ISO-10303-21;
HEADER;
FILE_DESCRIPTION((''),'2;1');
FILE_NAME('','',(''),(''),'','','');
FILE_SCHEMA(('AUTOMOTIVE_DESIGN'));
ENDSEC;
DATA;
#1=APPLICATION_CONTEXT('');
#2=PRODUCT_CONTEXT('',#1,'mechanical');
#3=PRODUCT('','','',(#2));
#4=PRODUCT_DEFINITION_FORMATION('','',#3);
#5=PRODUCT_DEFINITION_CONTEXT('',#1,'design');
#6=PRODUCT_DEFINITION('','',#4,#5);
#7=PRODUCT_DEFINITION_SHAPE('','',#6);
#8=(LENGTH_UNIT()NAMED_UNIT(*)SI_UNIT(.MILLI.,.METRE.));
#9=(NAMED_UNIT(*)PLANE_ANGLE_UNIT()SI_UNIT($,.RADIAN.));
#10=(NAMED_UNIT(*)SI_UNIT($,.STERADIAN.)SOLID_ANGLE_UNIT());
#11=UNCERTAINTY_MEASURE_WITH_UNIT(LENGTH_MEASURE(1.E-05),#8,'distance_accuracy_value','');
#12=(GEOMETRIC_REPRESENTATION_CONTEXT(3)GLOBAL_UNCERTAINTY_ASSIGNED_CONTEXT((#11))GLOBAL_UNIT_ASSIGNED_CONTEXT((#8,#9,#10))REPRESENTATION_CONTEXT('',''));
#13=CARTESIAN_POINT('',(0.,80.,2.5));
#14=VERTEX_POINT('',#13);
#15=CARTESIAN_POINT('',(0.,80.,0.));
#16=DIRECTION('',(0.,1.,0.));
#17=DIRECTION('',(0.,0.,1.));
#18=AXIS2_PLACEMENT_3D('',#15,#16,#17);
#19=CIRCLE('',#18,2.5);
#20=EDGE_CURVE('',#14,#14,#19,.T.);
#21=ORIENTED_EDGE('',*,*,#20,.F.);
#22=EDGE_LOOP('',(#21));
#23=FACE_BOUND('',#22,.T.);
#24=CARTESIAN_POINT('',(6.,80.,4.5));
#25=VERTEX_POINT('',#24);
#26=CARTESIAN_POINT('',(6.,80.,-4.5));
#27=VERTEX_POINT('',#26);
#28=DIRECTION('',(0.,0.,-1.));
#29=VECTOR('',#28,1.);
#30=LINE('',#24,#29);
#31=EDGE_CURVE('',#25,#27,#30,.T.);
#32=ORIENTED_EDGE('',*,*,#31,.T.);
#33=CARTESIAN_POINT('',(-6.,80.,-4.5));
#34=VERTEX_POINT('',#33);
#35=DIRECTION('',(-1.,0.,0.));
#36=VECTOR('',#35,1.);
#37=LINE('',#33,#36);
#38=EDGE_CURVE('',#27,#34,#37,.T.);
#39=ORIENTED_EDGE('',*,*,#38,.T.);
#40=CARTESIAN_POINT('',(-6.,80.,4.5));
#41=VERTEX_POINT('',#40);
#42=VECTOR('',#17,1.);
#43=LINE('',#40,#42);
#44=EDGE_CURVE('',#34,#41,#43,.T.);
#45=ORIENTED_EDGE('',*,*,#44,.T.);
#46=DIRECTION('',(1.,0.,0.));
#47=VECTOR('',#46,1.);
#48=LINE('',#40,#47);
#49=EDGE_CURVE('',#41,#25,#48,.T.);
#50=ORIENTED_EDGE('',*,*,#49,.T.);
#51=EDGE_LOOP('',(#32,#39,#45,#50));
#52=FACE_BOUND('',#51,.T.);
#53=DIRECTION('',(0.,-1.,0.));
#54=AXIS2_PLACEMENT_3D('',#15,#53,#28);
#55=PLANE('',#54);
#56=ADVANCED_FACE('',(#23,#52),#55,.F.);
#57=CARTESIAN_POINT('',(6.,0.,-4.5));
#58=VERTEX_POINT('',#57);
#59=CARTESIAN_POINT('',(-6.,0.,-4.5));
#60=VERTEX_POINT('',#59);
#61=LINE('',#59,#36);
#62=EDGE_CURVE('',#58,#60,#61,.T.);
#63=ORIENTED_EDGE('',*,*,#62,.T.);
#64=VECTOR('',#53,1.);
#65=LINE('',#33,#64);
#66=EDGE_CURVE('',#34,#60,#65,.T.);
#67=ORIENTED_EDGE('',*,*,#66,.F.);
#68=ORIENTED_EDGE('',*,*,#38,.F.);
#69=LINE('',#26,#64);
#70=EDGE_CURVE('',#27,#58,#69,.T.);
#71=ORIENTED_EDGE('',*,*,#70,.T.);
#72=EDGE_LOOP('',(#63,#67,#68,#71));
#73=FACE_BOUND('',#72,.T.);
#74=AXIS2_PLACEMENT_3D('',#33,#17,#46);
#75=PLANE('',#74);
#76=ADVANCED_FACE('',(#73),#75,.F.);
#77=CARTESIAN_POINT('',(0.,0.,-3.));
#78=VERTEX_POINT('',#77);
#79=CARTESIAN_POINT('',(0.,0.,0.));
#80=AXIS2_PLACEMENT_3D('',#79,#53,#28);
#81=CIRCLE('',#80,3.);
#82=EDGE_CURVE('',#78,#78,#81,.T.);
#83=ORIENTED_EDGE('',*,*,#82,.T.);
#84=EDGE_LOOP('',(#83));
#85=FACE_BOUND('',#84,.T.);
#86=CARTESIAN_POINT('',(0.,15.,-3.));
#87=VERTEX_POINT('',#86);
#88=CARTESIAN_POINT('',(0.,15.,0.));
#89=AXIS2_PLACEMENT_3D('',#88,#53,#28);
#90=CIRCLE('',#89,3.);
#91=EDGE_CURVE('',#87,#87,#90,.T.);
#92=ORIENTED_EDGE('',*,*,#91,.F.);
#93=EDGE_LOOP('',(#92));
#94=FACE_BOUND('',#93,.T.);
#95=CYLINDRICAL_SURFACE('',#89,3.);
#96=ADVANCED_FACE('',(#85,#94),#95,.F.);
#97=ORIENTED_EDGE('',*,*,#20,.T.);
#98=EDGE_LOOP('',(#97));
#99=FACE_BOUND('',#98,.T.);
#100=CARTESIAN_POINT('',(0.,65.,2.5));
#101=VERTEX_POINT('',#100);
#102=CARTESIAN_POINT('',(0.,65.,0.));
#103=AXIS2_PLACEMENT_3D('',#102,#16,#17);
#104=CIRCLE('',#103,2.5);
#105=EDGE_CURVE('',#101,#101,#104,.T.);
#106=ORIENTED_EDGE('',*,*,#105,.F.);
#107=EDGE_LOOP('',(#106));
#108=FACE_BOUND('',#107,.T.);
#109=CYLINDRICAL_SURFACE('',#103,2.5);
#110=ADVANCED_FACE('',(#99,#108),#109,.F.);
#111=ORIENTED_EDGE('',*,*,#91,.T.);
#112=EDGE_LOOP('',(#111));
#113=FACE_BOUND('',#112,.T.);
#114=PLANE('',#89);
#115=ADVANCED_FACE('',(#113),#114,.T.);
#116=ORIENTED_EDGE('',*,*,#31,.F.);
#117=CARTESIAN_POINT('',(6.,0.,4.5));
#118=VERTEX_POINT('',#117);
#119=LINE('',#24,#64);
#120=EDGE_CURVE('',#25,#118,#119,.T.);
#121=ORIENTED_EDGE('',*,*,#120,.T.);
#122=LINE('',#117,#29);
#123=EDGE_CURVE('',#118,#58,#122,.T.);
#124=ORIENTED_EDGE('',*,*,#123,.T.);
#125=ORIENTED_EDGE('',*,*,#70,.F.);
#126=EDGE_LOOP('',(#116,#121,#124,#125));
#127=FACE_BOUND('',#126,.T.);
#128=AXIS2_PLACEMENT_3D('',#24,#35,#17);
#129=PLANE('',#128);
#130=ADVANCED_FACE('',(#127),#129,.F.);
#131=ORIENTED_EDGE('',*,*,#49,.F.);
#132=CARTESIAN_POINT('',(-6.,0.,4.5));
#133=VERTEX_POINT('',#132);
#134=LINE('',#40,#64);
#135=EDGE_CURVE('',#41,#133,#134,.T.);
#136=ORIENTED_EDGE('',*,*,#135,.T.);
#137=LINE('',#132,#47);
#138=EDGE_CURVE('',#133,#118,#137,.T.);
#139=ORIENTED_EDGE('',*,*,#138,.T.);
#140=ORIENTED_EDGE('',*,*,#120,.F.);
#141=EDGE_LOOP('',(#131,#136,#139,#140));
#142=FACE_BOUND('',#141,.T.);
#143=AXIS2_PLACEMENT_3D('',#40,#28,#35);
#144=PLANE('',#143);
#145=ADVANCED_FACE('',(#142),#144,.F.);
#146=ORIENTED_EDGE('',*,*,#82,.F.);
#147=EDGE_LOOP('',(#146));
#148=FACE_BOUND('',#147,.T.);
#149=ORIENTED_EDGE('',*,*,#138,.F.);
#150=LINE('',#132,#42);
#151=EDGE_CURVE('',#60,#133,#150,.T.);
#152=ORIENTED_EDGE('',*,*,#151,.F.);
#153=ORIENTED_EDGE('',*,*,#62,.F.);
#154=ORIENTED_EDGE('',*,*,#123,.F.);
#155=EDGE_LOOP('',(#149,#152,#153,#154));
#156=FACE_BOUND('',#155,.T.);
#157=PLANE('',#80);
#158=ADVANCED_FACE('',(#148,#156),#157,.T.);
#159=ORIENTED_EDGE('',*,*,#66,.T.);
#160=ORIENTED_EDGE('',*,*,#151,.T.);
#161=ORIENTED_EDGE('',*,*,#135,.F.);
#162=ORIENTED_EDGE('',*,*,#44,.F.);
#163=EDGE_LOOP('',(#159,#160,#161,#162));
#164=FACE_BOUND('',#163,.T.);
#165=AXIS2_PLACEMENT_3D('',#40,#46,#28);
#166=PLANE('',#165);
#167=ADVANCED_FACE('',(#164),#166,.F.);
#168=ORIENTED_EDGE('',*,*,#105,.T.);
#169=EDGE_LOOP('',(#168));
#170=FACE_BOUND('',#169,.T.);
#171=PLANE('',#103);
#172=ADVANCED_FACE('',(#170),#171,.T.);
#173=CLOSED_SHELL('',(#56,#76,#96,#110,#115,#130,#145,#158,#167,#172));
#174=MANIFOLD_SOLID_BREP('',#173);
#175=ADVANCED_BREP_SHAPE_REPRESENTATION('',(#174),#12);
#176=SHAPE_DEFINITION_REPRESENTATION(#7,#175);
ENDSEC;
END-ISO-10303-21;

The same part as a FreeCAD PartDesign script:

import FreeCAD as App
import Part
import Sketcher
from FreeCAD import Vector
Q = App.Units.Quantity


def add_polygon(sketch, points):
    """Adds a closed chain of lines whose ends are joined by coincident constraints."""
    first, n = sketch.GeometryCount, len(points)
    for a, b in zip(points, points[1:] + points[:1]):
        sketch.addGeometry(Part.LineSegment(App.Vector(*a, 0), App.Vector(*b, 0)), False)
    for i in range(n):
        sketch.addConstraint(Sketcher.Constraint("Coincident", first + i, 2, first + (i + 1) % n, 1))

doc = App.newDocument("Part")
params = doc.addObject("Spreadsheet::Sheet", "Params")
for row, (alias, value) in enumerate([
    ("sketch1_width", "12 mm"),
    ("sketch1_height", "9 mm"),
    ("pad1_length", "80 mm"),
    ("sketch2_diameter", "6 mm"),
    ("pocket1_length", "15 mm"),
    ("sketch3_diameter", "5 mm"),
    ("pocket2_length", "15 mm"),
], start=1):
    params.set(f"A{row}", alias)
    params.set(f"B{row}", "=" + value)
    params.setAlias(f"B{row}", alias)

body = doc.addObject("PartDesign::Body", "Body")

sketch1 = doc.addObject("Sketcher::SketchObject", "Sketch")
body.addObject(sketch1)
sketch1.AttachmentSupport = (doc.XZ_Plane, [""])
sketch1.MapMode = "FlatFace"
add_polygon(sketch1, [(-6, -4), (-6, 4), (6, 4), (6, -4)])
sketch1.addConstraint([
    Sketcher.Constraint("Vertical", 0),
    Sketcher.Constraint("Horizontal", 1),
    Sketcher.Constraint("Vertical", 2),
    Sketcher.Constraint("Horizontal", 3),
    Sketcher.Constraint("Symmetric", 0, 2, 2, 2, -1, 1),
    Sketcher.Constraint("DistanceX", 1, 1, 1, 2, Q("12 mm")),
    Sketcher.Constraint("DistanceY", 0, 1, 0, 2, Q("9 mm")),
])
sketch1.setExpression("Constraints[9]", "Params.sketch1_width")
sketch1.setExpression("Constraints[10]", "Params.sketch1_height")
pad1 = doc.addObject("PartDesign::Pad", "Pad")
body.addObject(pad1)
pad1.Profile = sketch1
pad1.setExpression("Length", "Params.pad1_length")
pad1.Reversed = True

sketch2 = doc.addObject("Sketcher::SketchObject", "Sketch001")
body.addObject(sketch2)
sketch2.AttachmentSupport = (doc.XZ_Plane, [""])
sketch2.MapMode = "FlatFace"
sketch2.addGeometry(Part.Circle(Vector(0, 0, 0), Vector(0, 0, 1), 3), False)
sketch2.addConstraint([
    Sketcher.Constraint("Coincident", 0, 3, -1, 1),
    Sketcher.Constraint("Diameter", 0, Q("6 mm")),
])
sketch2.setExpression("Constraints[1]", "Params.sketch2_diameter")
pocket1 = doc.addObject("PartDesign::Pocket", "Pocket")
body.addObject(pocket1)
pocket1.Profile = sketch2
pocket1.setExpression("Length", "Params.pocket1_length")

sketch3 = doc.addObject("Sketcher::SketchObject", "Sketch002")
body.addObject(sketch3)
sketch3.AttachmentSupport = (doc.XZ_Plane, [""])
sketch3.MapMode = "FlatFace"
sketch3.AttachmentOffset = App.Placement(Vector(0, 0, -80), App.Rotation())
sketch3.addGeometry(Part.Circle(Vector(0, 0, 0), Vector(0, 0, 1), 2.5), False)
sketch3.addConstraint([
    Sketcher.Constraint("Coincident", 0, 3, -1, 1),
    Sketcher.Constraint("Diameter", 0, Q("5 mm")),
])
sketch3.setExpression("Constraints[1]", "Params.sketch3_diameter")
pocket2 = doc.addObject("PartDesign::Pocket", "Pocket001")
body.addObject(pocket2)
pocket2.Profile = sketch3
pocket2.setExpression("Length", "Params.pocket2_length")
pocket2.Reversed = True

doc.recompute()
